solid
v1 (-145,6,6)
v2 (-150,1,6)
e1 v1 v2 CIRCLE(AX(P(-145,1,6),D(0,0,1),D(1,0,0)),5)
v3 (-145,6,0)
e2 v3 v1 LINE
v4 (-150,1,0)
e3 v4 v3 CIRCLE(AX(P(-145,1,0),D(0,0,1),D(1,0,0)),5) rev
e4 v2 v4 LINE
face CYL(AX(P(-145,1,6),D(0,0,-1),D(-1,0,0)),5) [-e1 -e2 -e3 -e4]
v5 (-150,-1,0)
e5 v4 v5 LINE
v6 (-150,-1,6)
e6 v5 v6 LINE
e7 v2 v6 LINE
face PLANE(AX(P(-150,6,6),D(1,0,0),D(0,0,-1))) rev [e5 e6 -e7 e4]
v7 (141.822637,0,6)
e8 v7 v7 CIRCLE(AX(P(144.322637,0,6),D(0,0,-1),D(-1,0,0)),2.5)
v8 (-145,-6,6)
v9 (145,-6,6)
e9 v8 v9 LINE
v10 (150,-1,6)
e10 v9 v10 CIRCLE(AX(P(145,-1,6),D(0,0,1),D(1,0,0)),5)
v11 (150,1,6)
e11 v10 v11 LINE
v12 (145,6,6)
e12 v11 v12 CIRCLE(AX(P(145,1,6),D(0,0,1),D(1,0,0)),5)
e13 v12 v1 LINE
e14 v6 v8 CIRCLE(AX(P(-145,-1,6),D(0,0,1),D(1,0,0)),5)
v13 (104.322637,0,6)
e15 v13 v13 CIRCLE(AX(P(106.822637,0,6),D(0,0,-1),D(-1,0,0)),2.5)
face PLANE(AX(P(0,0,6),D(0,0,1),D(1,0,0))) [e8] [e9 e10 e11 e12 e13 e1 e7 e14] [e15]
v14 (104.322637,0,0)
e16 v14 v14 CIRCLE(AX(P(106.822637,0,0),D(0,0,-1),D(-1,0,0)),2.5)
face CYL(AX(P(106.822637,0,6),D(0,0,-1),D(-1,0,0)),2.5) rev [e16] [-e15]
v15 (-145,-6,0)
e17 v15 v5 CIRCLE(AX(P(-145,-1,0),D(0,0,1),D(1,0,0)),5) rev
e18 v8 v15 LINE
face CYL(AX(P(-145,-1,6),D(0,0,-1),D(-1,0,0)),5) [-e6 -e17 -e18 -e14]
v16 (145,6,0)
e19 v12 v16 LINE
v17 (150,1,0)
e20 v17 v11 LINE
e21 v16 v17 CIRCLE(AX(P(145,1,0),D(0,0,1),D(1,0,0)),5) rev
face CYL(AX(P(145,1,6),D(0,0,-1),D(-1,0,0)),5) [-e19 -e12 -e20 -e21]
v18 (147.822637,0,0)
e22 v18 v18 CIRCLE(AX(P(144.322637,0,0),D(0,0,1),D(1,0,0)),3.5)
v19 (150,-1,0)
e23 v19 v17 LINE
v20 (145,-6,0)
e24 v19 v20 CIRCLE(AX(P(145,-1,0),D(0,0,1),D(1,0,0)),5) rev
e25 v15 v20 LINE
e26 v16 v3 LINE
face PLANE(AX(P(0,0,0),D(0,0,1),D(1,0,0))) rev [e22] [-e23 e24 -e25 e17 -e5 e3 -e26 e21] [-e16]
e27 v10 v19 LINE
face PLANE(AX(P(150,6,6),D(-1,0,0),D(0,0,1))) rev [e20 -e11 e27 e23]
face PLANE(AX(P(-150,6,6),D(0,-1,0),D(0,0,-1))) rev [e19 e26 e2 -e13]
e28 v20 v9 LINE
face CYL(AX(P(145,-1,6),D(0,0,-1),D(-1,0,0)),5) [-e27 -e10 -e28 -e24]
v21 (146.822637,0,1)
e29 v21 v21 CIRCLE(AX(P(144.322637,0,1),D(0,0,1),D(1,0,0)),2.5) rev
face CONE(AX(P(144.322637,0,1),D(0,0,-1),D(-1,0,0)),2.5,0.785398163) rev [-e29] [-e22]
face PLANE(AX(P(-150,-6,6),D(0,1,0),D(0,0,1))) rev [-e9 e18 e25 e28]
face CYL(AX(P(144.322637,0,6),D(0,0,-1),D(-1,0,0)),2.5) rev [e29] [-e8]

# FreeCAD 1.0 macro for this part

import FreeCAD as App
import Part
import Sketcher
from FreeCAD import Vector
Q = App.Units.Quantity


def edges_at(feature, points):
    """Names of the edges that pass closest to the given points."""
    edges = feature.Shape.Edges
    near = lambda p: min(range(len(edges)), key=lambda i: edges[i].distToShape(Part.Vertex(*p))[0])
    return sorted({f"Edge{near(p) + 1}" for p in points})


def add_polygon(sketch, points):
    """Adds a closed chain of lines whose ends are joined by coincident constraints."""
    first, n = sketch.GeometryCount, len(points)
    for a, b in zip(points, points[1:] + points[:1]):
        sketch.addGeometry(Part.LineSegment(App.Vector(*a, 0), App.Vector(*b, 0)), False)
    for i in range(n):
        sketch.addConstraint(Sketcher.Constraint("Coincident", first + i, 2, first + (i + 1) % n, 1))

doc = App.newDocument("Part")
body = doc.addObject("PartDesign::Body", "Body")

# Sketch on XY plane
sketch1 = body.newObject("Sketcher::SketchObject", "Sketch")
sketch1.AttachmentSupport = (doc.getObject("XY_Plane"), [""])
sketch1.MapMode = "FlatFace"
add_polygon(sketch1, [(-150, 6), (-150, -6), (150, -6), (150, 6)])  # lines 0-3
sketch1.addConstraint(Sketcher.Constraint("Vertical", 0))
sketch1.addConstraint(Sketcher.Constraint("Horizontal", 1))
sketch1.addConstraint(Sketcher.Constraint("Vertical", 2))
sketch1.addConstraint(Sketcher.Constraint("Horizontal", 3))
sketch1.addConstraint(Sketcher.Constraint("Symmetric", 0, 2, 2, 2, -1, 1))
sketch1.addConstraint(Sketcher.Constraint("DistanceX", 1, 1, 1, 2, Q("300 mm")))
sketch1.addConstraint(Sketcher.Constraint("DistanceY", 0, 2, 0, 1, Q("12 mm")))
pad1 = body.newObject("PartDesign::Pad", "Pad")
pad1.Profile = sketch1
pad1.Length = 6
doc.recompute()

fillet = body.newObject("PartDesign::Fillet", "Fillet")
fillet.Base = (pad1, edges_at(pad1, [
    (150, -6, 3),
    (-150, -6, 3),
    (-150, 6, 3),
    (150, 6, 3),
]))
fillet.Radius = 5

# Sketch on XY plane
sketch2 = body.newObject("Sketcher::SketchObject", "Sketch001")
sketch2.AttachmentSupport = (doc.getObject("XY_Plane"), [""])
sketch2.MapMode = "FlatFace"
sketch2.addGeometry(Part.Circle(Vector(144.3, 0, 0), Vector(0, 0, 1), 2.5), False)
sketch2.addGeometry(Part.Circle(Vector(106.8, 0, 0), Vector(0, 0, 1), 2.5), False)
sketch2.addConstraint(Sketcher.Constraint("Equal", 0, 1))
sketch2.addConstraint(Sketcher.Constraint("PointOnObject", 0, 3, -1))
sketch2.addConstraint(Sketcher.Constraint("PointOnObject", 1, 3, -1))
sketch2.addConstraint(Sketcher.Constraint("Diameter", 0, Q("5 mm")))
sketch2.addConstraint(Sketcher.Constraint("DistanceX", 1, 3, 0, 3, Q("37.5 mm")))
sketch2.addConstraint(Sketcher.Constraint("DistanceX", -1, 1, 0, 3, Q("144.322637 mm")))
pocket1 = body.newObject("PartDesign::Pocket", "Pocket")
pocket1.Profile = sketch2
pocket1.Length = 6
pocket1.Reversed = True
doc.recompute()

chamfer = body.newObject("PartDesign::Chamfer", "Chamfer")
chamfer.Base = (pocket1, edges_at(pocket1, [(146.823, 0, 0)]))
chamfer.Size = 1

doc.recompute()
